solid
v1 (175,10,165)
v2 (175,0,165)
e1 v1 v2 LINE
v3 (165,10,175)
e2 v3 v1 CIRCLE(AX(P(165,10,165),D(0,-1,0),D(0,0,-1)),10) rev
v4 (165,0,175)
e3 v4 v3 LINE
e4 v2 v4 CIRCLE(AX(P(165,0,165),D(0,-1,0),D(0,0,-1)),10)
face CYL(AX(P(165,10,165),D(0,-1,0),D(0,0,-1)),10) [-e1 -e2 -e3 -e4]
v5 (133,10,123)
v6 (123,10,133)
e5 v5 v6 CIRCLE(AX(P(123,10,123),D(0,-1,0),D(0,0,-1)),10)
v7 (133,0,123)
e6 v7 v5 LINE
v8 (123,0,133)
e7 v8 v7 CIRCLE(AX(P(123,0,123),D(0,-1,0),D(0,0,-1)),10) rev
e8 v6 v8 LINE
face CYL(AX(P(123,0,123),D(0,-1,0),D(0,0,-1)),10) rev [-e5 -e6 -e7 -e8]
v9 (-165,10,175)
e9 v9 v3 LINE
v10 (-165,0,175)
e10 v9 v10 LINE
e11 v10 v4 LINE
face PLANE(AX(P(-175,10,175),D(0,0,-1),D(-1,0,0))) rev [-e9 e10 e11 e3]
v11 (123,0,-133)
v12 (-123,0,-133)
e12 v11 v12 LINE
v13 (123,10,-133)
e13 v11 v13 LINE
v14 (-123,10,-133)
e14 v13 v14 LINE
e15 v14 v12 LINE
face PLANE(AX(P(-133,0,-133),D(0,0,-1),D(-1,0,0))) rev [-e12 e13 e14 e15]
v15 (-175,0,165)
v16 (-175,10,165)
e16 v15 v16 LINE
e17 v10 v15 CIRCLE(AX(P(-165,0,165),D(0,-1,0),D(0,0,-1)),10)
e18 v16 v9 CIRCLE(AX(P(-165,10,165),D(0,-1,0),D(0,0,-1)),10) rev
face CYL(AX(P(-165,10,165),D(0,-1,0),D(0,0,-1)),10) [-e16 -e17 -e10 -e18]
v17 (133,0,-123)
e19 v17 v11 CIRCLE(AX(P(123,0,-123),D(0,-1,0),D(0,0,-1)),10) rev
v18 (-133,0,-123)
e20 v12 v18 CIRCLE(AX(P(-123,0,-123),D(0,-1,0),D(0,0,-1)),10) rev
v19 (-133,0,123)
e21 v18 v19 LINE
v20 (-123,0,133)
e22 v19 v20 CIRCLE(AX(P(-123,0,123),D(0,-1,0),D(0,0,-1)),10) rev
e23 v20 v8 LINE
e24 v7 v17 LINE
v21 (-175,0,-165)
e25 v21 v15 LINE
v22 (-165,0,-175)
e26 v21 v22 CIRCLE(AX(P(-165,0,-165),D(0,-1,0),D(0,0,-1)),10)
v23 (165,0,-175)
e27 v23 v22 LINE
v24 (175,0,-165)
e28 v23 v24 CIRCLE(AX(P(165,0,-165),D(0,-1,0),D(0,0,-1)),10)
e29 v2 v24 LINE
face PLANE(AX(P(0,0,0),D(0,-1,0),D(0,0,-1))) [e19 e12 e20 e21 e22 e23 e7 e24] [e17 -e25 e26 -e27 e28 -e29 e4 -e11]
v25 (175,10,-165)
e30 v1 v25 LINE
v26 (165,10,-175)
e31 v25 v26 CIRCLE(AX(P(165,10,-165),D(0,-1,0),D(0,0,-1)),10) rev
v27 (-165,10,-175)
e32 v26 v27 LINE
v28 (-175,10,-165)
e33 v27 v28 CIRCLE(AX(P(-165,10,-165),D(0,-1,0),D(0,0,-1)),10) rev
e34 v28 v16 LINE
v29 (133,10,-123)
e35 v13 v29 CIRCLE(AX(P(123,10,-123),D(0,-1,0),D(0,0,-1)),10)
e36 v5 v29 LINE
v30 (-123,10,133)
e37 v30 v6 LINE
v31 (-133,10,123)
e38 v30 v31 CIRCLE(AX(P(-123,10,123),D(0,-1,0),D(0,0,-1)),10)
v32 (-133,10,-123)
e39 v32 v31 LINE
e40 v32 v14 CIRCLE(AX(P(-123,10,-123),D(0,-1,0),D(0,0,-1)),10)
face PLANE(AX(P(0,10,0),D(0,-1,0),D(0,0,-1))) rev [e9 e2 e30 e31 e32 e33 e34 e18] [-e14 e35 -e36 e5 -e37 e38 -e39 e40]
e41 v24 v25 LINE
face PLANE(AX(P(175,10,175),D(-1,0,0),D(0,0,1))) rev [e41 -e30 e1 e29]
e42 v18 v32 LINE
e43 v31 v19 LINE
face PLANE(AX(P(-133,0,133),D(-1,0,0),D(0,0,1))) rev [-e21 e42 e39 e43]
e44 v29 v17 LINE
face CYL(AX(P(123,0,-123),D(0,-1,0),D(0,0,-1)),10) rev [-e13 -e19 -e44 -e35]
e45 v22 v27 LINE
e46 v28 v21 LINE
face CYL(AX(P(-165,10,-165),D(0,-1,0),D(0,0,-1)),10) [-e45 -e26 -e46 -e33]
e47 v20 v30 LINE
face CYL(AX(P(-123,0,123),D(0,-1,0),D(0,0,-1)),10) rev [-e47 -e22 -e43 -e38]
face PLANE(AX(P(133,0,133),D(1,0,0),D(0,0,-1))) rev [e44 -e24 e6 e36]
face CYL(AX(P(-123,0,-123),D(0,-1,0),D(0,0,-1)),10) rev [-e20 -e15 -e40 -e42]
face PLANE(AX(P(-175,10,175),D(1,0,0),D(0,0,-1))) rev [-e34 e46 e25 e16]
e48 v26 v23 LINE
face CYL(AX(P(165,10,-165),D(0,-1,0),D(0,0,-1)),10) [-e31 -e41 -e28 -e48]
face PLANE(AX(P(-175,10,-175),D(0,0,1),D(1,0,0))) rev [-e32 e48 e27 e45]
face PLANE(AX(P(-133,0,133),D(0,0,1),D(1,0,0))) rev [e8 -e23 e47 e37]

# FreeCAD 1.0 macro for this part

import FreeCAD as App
import Part
import Sketcher
from FreeCAD import Vector


def edges_at(feature, points):
    """Names of the edges that pass closest to the given points."""
    edges = feature.Shape.Edges
    near = lambda p: min(range(len(edges)), key=lambda i: edges[i].distToShape(Part.Vertex(*p))[0])
    return sorted({f"Edge{near(p) + 1}" for p in points})


def add_polygon(sketch, points):
    """Adds a closed chain of lines whose ends are joined by coincident constraints."""
    first, n = sketch.GeometryCount, len(points)
    for a, b in zip(points, points[1:] + points[:1]):
        sketch.addGeometry(Part.LineSegment(App.Vector(*a, 0), App.Vector(*b, 0)), False)
    for i in range(n):
        sketch.addConstraint(Sketcher.Constraint("Coincident", first + i, 2, first + (i + 1) % n, 1))

doc = App.newDocument("Part")
body = doc.addObject("PartDesign::Body", "Body")

# Sketch on XZ plane
sketch1 = body.newObject("Sketcher::SketchObject", "Sketch")
sketch1.AttachmentSupport = (doc.getObject("XZ_Plane"), [""])
sketch1.MapMode = "FlatFace"
add_polygon(sketch1, [(-175, -175), (-175, 175), (175, 175), (175, -175)])  # lines 0-3
sketch1.addConstraint([
    Sketcher.Constraint("Vertical", 0),
    Sketcher.Constraint("Horizontal", 1),
    Sketcher.Constraint("Vertical", 2),
    Sketcher.Constraint("Horizontal", 3),
    Sketcher.Constraint("Symmetric", 0, 2, 2, 2, -1, 1),
    Sketcher.Constraint("Equal", 3, 0),
    Sketcher.Constraint("DistanceX", 1, 1, 1, 2, 350.0),
])
pad1 = body.newObject("PartDesign::Pad", "Pad")
pad1.Profile = sketch1
pad1.Length = 10
pad1.Reversed = True

# Sketch on XZ plane
sketch2 = body.newObject("Sketcher::SketchObject", "Sketch001")
sketch2.AttachmentSupport = (doc.getObject("XZ_Plane"), [""])
sketch2.MapMode = "FlatFace"
sketch2.AttachmentOffset = App.Placement(Vector(0, 0, -10), App.Rotation())
add_polygon(sketch2, [(-133, -133), (-133, 133), (133, 133), (133, -133)])  # lines 0-3
sketch2.addConstraint([
    Sketcher.Constraint("Vertical", 0),
    Sketcher.Constraint("Horizontal", 1),
    Sketcher.Constraint("Vertical", 2),
    Sketcher.Constraint("Horizontal", 3),
    Sketcher.Constraint("Symmetric", 0, 2, 2, 2, -1, 1),
    Sketcher.Constraint("Equal", 3, 0),
    Sketcher.Constraint("DistanceX", 1, 1, 1, 2, 266.0),
])
pocket1 = body.newObject("PartDesign::Pocket", "Pocket")
pocket1.Profile = sketch2
pocket1.Type = "ThroughAll"
pocket1.Reversed = True
doc.recompute()

fillet = body.newObject("PartDesign::Fillet", "Fillet")
fillet.Base = (pocket1, edges_at(pocket1, [
    (133, 5, -133),
    (133, 5, 133),
    (-133, 5, 133),
    (-133, 5, -133),
    (175, 5, 175),
    (-175, 5, 175),
    (-175, 5, -175),
    (175, 5, -175),
]))
fillet.Radius = 10

doc.recompute()
